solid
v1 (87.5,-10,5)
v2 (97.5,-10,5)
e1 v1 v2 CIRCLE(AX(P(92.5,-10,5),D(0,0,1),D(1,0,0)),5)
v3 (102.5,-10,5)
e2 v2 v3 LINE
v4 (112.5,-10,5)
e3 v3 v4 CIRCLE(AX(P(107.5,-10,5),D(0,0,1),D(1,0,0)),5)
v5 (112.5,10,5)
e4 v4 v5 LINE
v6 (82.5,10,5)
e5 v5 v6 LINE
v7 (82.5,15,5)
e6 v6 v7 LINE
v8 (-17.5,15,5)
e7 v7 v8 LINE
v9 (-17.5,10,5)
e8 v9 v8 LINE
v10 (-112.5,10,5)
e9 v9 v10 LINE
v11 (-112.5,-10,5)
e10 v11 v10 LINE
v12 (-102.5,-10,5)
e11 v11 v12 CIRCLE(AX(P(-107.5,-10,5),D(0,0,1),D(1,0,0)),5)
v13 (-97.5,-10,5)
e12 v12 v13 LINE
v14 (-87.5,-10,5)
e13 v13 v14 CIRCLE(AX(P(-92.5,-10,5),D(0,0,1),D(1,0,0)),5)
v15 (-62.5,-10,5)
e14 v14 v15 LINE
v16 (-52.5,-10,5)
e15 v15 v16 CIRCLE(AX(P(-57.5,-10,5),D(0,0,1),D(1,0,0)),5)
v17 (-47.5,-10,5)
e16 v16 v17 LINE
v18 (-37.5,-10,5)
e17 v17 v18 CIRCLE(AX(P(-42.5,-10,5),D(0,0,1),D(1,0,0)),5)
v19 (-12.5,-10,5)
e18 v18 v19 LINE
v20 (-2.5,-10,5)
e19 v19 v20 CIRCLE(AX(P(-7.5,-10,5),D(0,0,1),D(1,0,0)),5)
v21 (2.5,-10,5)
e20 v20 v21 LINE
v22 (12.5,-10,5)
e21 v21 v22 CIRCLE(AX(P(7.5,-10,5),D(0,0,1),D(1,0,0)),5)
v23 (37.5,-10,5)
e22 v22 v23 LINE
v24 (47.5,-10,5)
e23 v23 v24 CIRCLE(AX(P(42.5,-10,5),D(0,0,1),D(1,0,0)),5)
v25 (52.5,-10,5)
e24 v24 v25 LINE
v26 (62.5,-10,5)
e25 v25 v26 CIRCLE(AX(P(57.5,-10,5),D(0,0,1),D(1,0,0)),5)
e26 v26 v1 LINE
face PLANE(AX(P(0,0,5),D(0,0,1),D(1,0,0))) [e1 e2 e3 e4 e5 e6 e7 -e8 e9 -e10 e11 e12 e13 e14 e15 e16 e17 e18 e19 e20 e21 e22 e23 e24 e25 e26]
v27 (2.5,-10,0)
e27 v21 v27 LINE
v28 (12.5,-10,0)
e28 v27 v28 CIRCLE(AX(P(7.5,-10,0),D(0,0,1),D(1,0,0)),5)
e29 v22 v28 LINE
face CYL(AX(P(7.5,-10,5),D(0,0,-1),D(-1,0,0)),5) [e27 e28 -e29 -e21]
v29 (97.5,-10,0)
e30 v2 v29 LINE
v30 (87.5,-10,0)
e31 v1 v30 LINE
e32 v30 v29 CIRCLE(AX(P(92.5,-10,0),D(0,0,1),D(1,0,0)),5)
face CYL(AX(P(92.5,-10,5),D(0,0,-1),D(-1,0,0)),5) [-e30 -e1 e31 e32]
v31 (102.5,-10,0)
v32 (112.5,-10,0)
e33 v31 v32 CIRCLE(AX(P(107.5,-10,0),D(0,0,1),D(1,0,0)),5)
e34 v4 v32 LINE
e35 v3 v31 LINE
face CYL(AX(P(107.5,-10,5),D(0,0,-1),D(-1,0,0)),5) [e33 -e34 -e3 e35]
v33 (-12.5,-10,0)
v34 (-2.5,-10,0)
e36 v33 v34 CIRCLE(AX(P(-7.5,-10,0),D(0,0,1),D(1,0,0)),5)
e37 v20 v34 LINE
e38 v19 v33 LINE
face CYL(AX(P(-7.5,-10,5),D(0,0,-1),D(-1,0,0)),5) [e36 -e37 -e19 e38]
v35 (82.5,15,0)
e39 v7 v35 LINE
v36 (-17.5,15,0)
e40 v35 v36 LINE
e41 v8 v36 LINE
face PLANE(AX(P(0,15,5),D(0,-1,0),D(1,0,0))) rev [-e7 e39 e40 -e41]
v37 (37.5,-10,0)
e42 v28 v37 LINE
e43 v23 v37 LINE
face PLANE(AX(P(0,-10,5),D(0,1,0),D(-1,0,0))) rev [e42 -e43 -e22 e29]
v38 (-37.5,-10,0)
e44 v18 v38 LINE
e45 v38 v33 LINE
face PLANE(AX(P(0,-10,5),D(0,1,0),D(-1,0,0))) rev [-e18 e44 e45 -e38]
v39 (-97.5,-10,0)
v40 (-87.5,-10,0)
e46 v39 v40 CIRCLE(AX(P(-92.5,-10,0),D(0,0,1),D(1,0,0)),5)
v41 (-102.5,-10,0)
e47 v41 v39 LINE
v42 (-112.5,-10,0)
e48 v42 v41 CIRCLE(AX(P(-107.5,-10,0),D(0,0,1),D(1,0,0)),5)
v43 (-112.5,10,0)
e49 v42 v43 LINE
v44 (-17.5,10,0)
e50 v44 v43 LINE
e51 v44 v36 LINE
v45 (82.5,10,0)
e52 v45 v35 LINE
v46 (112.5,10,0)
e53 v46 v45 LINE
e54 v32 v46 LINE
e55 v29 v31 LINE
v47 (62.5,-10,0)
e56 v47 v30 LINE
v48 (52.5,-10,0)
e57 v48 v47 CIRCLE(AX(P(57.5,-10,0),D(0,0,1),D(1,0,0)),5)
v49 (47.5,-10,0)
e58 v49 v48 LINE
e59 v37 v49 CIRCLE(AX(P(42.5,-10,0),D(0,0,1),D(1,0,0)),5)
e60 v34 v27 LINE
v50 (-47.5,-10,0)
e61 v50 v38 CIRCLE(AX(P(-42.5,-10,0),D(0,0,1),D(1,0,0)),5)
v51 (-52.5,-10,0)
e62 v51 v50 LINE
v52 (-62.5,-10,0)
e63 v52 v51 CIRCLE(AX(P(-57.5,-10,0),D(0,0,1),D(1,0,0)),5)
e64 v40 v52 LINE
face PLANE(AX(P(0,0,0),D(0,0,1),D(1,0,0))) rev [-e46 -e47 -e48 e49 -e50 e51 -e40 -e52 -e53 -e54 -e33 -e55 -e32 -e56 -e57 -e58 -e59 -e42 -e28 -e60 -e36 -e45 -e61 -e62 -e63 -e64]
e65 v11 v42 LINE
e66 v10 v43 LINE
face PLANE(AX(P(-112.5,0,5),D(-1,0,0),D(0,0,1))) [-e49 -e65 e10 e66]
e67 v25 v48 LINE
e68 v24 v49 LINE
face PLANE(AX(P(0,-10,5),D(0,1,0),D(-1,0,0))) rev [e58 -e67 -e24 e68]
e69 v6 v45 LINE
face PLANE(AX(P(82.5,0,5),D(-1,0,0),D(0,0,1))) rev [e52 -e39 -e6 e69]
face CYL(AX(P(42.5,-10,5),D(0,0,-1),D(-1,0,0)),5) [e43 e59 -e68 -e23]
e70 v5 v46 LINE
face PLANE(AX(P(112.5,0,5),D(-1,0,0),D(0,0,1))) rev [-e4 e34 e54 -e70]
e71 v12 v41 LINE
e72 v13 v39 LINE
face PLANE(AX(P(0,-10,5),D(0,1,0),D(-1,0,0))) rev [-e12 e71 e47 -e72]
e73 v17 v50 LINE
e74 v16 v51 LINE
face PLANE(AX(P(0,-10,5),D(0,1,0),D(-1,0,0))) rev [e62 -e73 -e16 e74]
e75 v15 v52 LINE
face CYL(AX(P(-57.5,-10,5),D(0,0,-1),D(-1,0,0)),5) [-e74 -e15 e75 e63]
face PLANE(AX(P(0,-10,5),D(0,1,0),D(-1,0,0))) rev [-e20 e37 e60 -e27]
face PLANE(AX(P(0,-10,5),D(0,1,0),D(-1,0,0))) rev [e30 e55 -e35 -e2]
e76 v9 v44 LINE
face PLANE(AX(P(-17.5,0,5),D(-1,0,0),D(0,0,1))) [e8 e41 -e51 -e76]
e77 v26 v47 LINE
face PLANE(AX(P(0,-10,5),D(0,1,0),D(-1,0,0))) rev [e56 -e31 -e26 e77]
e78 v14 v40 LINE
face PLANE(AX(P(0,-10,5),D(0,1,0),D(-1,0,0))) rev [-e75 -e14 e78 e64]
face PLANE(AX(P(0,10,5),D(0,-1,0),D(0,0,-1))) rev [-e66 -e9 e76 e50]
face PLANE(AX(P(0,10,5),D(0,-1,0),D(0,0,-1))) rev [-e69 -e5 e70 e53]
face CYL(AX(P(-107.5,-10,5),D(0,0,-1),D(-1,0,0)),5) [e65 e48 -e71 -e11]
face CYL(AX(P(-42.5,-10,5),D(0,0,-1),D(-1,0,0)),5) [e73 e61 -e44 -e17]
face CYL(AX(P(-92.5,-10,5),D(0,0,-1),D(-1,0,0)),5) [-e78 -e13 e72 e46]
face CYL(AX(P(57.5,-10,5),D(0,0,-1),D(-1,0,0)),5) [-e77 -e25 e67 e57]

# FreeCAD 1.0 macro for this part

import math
import FreeCAD as App
import Part
import Sketcher
Q = App.Units.Quantity

doc = App.newDocument("Part")
body = doc.addObject("PartDesign::Body", "Body")

sketch1 = body.newObject("Sketcher::SketchObject", "Sketch")
sketch1.AttachmentSupport = (doc.getObject("XY_Plane"), [""])
sketch1.MapMode = "FlatFace"
sketch1.addGeometry([
    Part.LineSegment(App.Vector(97.5, -10, 0), App.Vector(102.5, -10, 0)),
    Part.ArcOfCircle(Part.Circle(App.Vector(107.5, -10, 0), App.Vector(0, 0, 1), 5), math.radians(180), math.radians(360)),
    Part.LineSegment(App.Vector(112.5, -10, 0), App.Vector(112.5, 10, 0)),
    Part.LineSegment(App.Vector(112.5, 10, 0), App.Vector(82.5, 10, 0)),
    Part.LineSegment(App.Vector(82.5, 10, 0), App.Vector(82.5, 15, 0)),
    Part.LineSegment(App.Vector(82.5, 15, 0), App.Vector(-17.5, 15, 0)),
    Part.LineSegment(App.Vector(-17.5, 15, 0), App.Vector(-17.5, 10, 0)),
    Part.LineSegment(App.Vector(-17.5, 10, 0), App.Vector(-112.5, 10, 0)),
    Part.LineSegment(App.Vector(-112.5, 10, 0), App.Vector(-112.5, -10, 0)),
    Part.ArcOfCircle(Part.Circle(App.Vector(-107.5, -10, 0), App.Vector(0, 0, 1), 5), math.radians(180), math.radians(360)),
    Part.LineSegment(App.Vector(-102.5, -10, 0), App.Vector(-97.5, -10, 0)),
    Part.ArcOfCircle(Part.Circle(App.Vector(-92.5, -10, 0), App.Vector(0, 0, 1), 5), math.radians(180), math.radians(360)),
    Part.LineSegment(App.Vector(-87.5, -10, 0), App.Vector(-62.5, -10, 0)),
    Part.ArcOfCircle(Part.Circle(App.Vector(-57.5, -10, 0), App.Vector(0, 0, 1), 5), math.radians(180), math.radians(360)),
    Part.LineSegment(App.Vector(-52.5, -10, 0), App.Vector(-47.5, -10, 0)),
    Part.ArcOfCircle(Part.Circle(App.Vector(-42.5, -10, 0), App.Vector(0, 0, 1), 5), math.radians(180), math.radians(360)),
    Part.LineSegment(App.Vector(-37.5, -10, 0), App.Vector(-12.5, -10, 0)),
    Part.ArcOfCircle(Part.Circle(App.Vector(-7.5, -10, 0), App.Vector(0, 0, 1), 5), math.radians(180), math.radians(360)),
    Part.LineSegment(App.Vector(-2.5, -10, 0), App.Vector(2.5, -10, 0)),
    Part.ArcOfCircle(Part.Circle(App.Vector(7.5, -10, 0), App.Vector(0, 0, 1), 5), math.radians(180), math.radians(360)),
    Part.LineSegment(App.Vector(12.5, -10, 0), App.Vector(37.5, -10, 0)),
    Part.ArcOfCircle(Part.Circle(App.Vector(42.5, -10, 0), App.Vector(0, 0, 1), 5), math.radians(180), math.radians(360)),
    Part.LineSegment(App.Vector(47.5, -10, 0), App.Vector(52.5, -10, 0)),
    Part.ArcOfCircle(Part.Circle(App.Vector(57.5, -10, 0), App.Vector(0, 0, 1), 5), math.radians(180), math.radians(360)),
    Part.LineSegment(App.Vector(62.5, -10, 0), App.Vector(87.5, -10, 0)),
    Part.ArcOfCircle(Part.Circle(App.Vector(92.5, -10, 0), App.Vector(0, 0, 1), 5), math.radians(180), math.radians(360)),
], False)
sketch1.addConstraint([
    Sketcher.Constraint("Coincident", 0, 2, 1, 1),
    Sketcher.Constraint("Tangent", 1, 2, 2, 1),
    Sketcher.Constraint("Coincident", 2, 2, 3, 1),
    Sketcher.Constraint("Coincident", 3, 2, 4, 1),
    Sketcher.Constraint("Coincident", 4, 2, 5, 1),
    Sketcher.Constraint("Coincident", 5, 2, 6, 1),
    Sketcher.Constraint("Coincident", 6, 2, 7, 1),
    Sketcher.Constraint("Coincident", 7, 2, 8, 1),
    Sketcher.Constraint("Tangent", 8, 2, 9, 1),
    Sketcher.Constraint("Coincident", 9, 2, 10, 1),
    Sketcher.Constraint("Coincident", 10, 2, 11, 1),
    Sketcher.Constraint("Coincident", 11, 2, 12, 1),
    Sketcher.Constraint("Coincident", 12, 2, 13, 1),
    Sketcher.Constraint("Coincident", 13, 2, 14, 1),
    Sketcher.Constraint("Coincident", 14, 2, 15, 1),
    Sketcher.Constraint("Coincident", 15, 2, 16, 1),
    Sketcher.Constraint("Coincident", 16, 2, 17, 1),
    Sketcher.Constraint("Coincident", 17, 2, 18, 1),
    Sketcher.Constraint("Coincident", 18, 2, 19, 1),
    Sketcher.Constraint("Coincident", 19, 2, 20, 1),
    Sketcher.Constraint("Coincident", 20, 2, 21, 1),
    Sketcher.Constraint("Coincident", 21, 2, 22, 1),
    Sketcher.Constraint("Coincident", 22, 2, 23, 1),
    Sketcher.Constraint("Coincident", 23, 2, 24, 1),
    Sketcher.Constraint("Coincident", 24, 2, 25, 1),
    Sketcher.Constraint("Coincident", 25, 2, 0, 1),
    Sketcher.Constraint("Horizontal", 0),
    Sketcher.Constraint("Vertical", 2),
    Sketcher.Constraint("Horizontal", 3),
    Sketcher.Constraint("Vertical", 4),
    Sketcher.Constraint("Horizontal", 5),
    Sketcher.Constraint("Vertical", 6),
    Sketcher.Constraint("Horizontal", 7),
    Sketcher.Constraint("Vertical", 8),
    Sketcher.Constraint("Horizontal", 10),
    Sketcher.Constraint("Horizontal", 12),
    Sketcher.Constraint("Horizontal", 14),
    Sketcher.Constraint("Horizontal", 16),
    Sketcher.Constraint("Horizontal", 18),
    Sketcher.Constraint("Horizontal", 20),
    Sketcher.Constraint("Horizontal", 22),
    Sketcher.Constraint("Horizontal", 24),
    Sketcher.Constraint("Equal", 1, 9),
    Sketcher.Constraint("Equal", 9, 11),
    Sketcher.Constraint("Equal", 11, 13),
    Sketcher.Constraint("Equal", 13, 15),
    Sketcher.Constraint("Equal", 15, 17),
    Sketcher.Constraint("Equal", 17, 19),
    Sketcher.Constraint("Equal", 19, 21),
    Sketcher.Constraint("Equal", 21, 23),
    Sketcher.Constraint("Equal", 23, 25),
    Sketcher.Constraint("Symmetric", 1, 2, 7, 2, -1, 1),
    Sketcher.Constraint("Symmetric", 17, 3, 19, 3, -2),
    Sketcher.Constraint("Symmetric", 15, 3, 21, 3, -2),
    Sketcher.Constraint("Symmetric", 13, 3, 23, 3, -2),
    Sketcher.Constraint("Symmetric", 11, 3, 25, 3, -2),
    Sketcher.Constraint("Horizontal", 1, 3, 9, 3),
    Sketcher.Constraint("Horizontal", 9, 3, 11, 3),
    Sketcher.Constraint("Horizontal", 11, 3, 13, 3),
    Sketcher.Constraint("Horizontal", 13, 3, 15, 3),
    Sketcher.Constraint("Horizontal", 15, 3, 17, 3),
    Sketcher.Constraint("Horizontal", 25, 3, 0, 2),
    Sketcher.Constraint("Horizontal", 3, 2, 6, 2),
    Sketcher.Constraint("Horizontal", 8, 2, 9, 2),
    Sketcher.Constraint("Horizontal", 10, 2, 11, 2),
    Sketcher.Constraint("Horizontal", 12, 2, 13, 2),
    Sketcher.Constraint("Horizontal", 14, 2, 15, 2),
    Sketcher.Constraint("Horizontal", 16, 2, 17, 2),
    Sketcher.Constraint("Horizontal", 18, 2, 19, 2),
    Sketcher.Constraint("Horizontal", 20, 2, 21, 2),
    Sketcher.Constraint("Horizontal", 22, 2, 23, 2),
    Sketcher.Constraint("Equal", 10, 14),
    Sketcher.Constraint("Equal", 12, 16),
    Sketcher.Constraint("Equal", 14, 18),
    Sketcher.Constraint("Equal", 22, 4),
    Sketcher.Constraint("Radius", 1, Q("5 mm")),
    Sketcher.Constraint("DistanceX", 0, 1, 0, 2, Q("5 mm")),
    Sketcher.Constraint("DistanceX", 3, 2, 3, 1, Q("30 mm")),
    Sketcher.Constraint("DistanceX", 5, 2, 5, 1, Q("100 mm")),
    Sketcher.Constraint("DistanceX", 7, 2, 7, 1, Q("95 mm")),
    Sketcher.Constraint("DistanceY", 2, 1, 2, 2, Q("20 mm")),
])
pad1 = body.newObject("PartDesign::Pad", "Pad")
pad1.Profile = sketch1
pad1.Length = 5

doc.recompute()
